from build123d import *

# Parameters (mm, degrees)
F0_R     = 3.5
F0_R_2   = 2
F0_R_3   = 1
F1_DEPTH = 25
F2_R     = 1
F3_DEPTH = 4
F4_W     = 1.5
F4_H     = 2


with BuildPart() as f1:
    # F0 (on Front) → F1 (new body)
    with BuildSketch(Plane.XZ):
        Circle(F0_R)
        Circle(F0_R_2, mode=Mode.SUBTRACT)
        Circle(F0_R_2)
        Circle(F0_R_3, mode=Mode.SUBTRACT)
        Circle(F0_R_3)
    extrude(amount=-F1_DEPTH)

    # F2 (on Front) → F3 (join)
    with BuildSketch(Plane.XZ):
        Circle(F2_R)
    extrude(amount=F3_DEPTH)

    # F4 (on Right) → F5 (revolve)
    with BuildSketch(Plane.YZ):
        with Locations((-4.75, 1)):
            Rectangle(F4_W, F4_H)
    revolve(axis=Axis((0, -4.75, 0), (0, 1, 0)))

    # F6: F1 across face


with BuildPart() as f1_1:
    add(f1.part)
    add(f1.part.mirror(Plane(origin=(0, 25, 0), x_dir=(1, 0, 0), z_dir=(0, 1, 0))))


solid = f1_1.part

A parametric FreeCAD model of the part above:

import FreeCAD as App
import Part
import Sketcher

V = App.Vector
Q = App.Units.Quantity


def add_polygon(sketch, points):
    """Adds a closed chain of lines whose ends are joined by coincident constraints."""
    first, n = sketch.GeometryCount, len(points)
    for a, b in zip(points, points[1:] + points[:1]):
        sketch.addGeometry(Part.LineSegment(App.Vector(*a, 0), App.Vector(*b, 0)), False)
    for i in range(n):
        sketch.addConstraint(Sketcher.Constraint("Coincident", first + i, 2, first + (i + 1) % n, 1))

doc = App.newDocument("Part")
body = doc.addObject("PartDesign::Body", "Body")

sketch1 = body.newObject("Sketcher::SketchObject", "Sketch")
sketch1.AttachmentSupport = (doc.getObject("XZ_Plane"), [""])
sketch1.MapMode = "FlatFace"
sketch1.addGeometry(Part.Circle(V(0, 0, 0), V(0, 0, 1), 3.5), False)
sketch1.addConstraint([
    Sketcher.Constraint("Coincident", 0, 3, -1, 1),
    Sketcher.Constraint("Diameter", 0, Q("7 mm")),
])
pad1 = body.newObject("PartDesign::Pad", "Pad")
pad1.Profile = sketch1
pad1.Length = 25
pad1.Reversed = True

sketch2 = body.newObject("Sketcher::SketchObject", "Sketch001")
sketch2.AttachmentSupport = (doc.getObject("XZ_Plane"), [""])
sketch2.MapMode = "FlatFace"
sketch2.addGeometry(Part.Circle(V(0, 0, 0), V(0, 0, 1), 1), False)
sketch2.addConstraint([
    Sketcher.Constraint("Coincident", 0, 3, -1, 1),
    Sketcher.Constraint("Diameter", 0, Q("2 mm")),
])
pad2 = body.newObject("PartDesign::Pad", "Pad001")
pad2.Profile = sketch2
pad2.Length = 4

sketch3 = body.newObject("Sketcher::SketchObject", "Sketch002")
sketch3.AttachmentSupport = (doc.getObject("YZ_Plane"), [""])
sketch3.MapMode = "FlatFace"
add_polygon(sketch3, [(-5.5, 2), (-5.5, 0), (-4, 0), (-4, 2)])
sketch3.addConstraint([
    Sketcher.Constraint("Vertical", 0),
    Sketcher.Constraint("Horizontal", 1),
    Sketcher.Constraint("Vertical", 2),
    Sketcher.Constraint("Horizontal", 3),
    Sketcher.Constraint("PointOnObject", 0, 2, -1),
    Sketcher.Constraint("DistanceY", 0, 2, 0, 1, Q("2 mm")),
    Sketcher.Constraint("DistanceX", 1, 1, 1, 2, Q("1.5 mm")),
    Sketcher.Constraint("DistanceX", 1, 2, -1, 1, Q("4 mm")),
])
revolution = body.newObject("PartDesign::Revolution", "Revolution")
revolution.Profile = sketch3
revolution.ReferenceAxis = (sketch3, ["H_Axis"])
revolution.Angle = 360
body2 = doc.addObject("PartDesign::Body", "Body001")
doc.recompute()

body2.BaseFeature = body
doc.recompute()

mirroring = doc.addObject("Part::Mirroring", "Mirroring")
mirroring.Source = body
mirroring.Base = V(0, 25, 0)
mirroring.Normal = V(0, 1, 0)
body3 = doc.addObject("PartDesign::Body", "Body002")
body3.BaseFeature = mirroring
boolean = body2.newObject("PartDesign::Boolean", "Boolean")
boolean.Type = "Fuse"
boolean.addObjects([body3])
doc.recompute()
mirroring.Visibility = False

doc.recompute()
